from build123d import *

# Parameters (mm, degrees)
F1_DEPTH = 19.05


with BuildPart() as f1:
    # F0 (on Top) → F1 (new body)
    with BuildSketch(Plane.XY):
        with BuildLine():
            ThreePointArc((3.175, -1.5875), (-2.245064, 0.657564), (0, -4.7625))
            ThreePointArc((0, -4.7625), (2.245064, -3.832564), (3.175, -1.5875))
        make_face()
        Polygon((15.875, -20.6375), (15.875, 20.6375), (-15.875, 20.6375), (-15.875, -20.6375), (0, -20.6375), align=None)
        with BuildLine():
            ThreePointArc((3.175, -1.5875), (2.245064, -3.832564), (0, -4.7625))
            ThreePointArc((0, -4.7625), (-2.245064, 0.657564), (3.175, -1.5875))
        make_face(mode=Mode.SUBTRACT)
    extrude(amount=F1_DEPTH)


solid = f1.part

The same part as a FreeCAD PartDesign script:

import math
import FreeCAD as App
import Part
import Sketcher

V = App.Vector
Q = App.Units.Quantity

doc = App.newDocument("Part")
body = doc.addObject("PartDesign::Body", "Body")

# Sketch on XY plane
sketch1 = body.newObject("Sketcher::SketchObject", "Sketch")
sketch1.AttachmentSupport = (doc.getObject("XY_Plane"), [""])
sketch1.MapMode = "FlatFace"
sketch1.addGeometry([
    Part.LineSegment(V(15.9, -20.6, 0), V(15.9, 20.6, 0)),  # 0
    Part.LineSegment(V(15.9, 20.6, 0), V(-15.9, 20.6, 0)),  # 1
    Part.LineSegment(V(-15.9, 20.6, 0), V(-15.9, -20.6, 0)),  # 2
    Part.LineSegment(V(-15.9, -20.6, 0), V(15.9, -20.6, 0)),  # 3
    Part.ArcOfCircle(Part.Circle(V(0, -1.6, 0), V(0, 0, 1), 3.2), math.radians(0), math.radians(270)),  # 4
    Part.ArcOfCircle(Part.Circle(V(0, -1.6, 0), V(0, 0, 1), 3.2), math.radians(-90), math.radians(0)),  # 5
], False)
sketch1.addConstraint([
    Sketcher.Constraint("Coincident", 0, 2, 1, 1),
    Sketcher.Constraint("Coincident", 1, 2, 2, 1),
    Sketcher.Constraint("Coincident", 2, 2, 3, 1),
    Sketcher.Constraint("Coincident", 3, 2, 0, 1),
    Sketcher.Constraint("Tangent", 4, 1, 5, 2),
    Sketcher.Constraint("Coincident", 5, 1, 4, 2),
    Sketcher.Constraint("Vertical", 0),
    Sketcher.Constraint("Horizontal", 1),
    Sketcher.Constraint("Vertical", 2),
    Sketcher.Constraint("Horizontal", 3),
    Sketcher.Constraint("Symmetric", 0, 2, 2, 2, -1, 1),
    Sketcher.Constraint("PointOnObject", 4, 3, -2),
    Sketcher.Constraint("PointOnObject", 5, 1, -2),
    Sketcher.Constraint("Horizontal", 5, 3, 4, 1),
    Sketcher.Constraint("Radius", 4, Q("0.125 in")),
    Sketcher.Constraint("DistanceX", 1, 2, 1, 1, Q("1.25 in")),
    Sketcher.Constraint("DistanceY", 0, 1, 0, 2, Q("1.625 in")),
    Sketcher.Constraint("DistanceY", 2, 2, 4, 3, Q("0.75 in")),
])
pad1 = body.newObject("PartDesign::Pad", "Pad")
pad1.Profile = sketch1
pad1.Length = Q("0.75 in")

doc.recompute()
